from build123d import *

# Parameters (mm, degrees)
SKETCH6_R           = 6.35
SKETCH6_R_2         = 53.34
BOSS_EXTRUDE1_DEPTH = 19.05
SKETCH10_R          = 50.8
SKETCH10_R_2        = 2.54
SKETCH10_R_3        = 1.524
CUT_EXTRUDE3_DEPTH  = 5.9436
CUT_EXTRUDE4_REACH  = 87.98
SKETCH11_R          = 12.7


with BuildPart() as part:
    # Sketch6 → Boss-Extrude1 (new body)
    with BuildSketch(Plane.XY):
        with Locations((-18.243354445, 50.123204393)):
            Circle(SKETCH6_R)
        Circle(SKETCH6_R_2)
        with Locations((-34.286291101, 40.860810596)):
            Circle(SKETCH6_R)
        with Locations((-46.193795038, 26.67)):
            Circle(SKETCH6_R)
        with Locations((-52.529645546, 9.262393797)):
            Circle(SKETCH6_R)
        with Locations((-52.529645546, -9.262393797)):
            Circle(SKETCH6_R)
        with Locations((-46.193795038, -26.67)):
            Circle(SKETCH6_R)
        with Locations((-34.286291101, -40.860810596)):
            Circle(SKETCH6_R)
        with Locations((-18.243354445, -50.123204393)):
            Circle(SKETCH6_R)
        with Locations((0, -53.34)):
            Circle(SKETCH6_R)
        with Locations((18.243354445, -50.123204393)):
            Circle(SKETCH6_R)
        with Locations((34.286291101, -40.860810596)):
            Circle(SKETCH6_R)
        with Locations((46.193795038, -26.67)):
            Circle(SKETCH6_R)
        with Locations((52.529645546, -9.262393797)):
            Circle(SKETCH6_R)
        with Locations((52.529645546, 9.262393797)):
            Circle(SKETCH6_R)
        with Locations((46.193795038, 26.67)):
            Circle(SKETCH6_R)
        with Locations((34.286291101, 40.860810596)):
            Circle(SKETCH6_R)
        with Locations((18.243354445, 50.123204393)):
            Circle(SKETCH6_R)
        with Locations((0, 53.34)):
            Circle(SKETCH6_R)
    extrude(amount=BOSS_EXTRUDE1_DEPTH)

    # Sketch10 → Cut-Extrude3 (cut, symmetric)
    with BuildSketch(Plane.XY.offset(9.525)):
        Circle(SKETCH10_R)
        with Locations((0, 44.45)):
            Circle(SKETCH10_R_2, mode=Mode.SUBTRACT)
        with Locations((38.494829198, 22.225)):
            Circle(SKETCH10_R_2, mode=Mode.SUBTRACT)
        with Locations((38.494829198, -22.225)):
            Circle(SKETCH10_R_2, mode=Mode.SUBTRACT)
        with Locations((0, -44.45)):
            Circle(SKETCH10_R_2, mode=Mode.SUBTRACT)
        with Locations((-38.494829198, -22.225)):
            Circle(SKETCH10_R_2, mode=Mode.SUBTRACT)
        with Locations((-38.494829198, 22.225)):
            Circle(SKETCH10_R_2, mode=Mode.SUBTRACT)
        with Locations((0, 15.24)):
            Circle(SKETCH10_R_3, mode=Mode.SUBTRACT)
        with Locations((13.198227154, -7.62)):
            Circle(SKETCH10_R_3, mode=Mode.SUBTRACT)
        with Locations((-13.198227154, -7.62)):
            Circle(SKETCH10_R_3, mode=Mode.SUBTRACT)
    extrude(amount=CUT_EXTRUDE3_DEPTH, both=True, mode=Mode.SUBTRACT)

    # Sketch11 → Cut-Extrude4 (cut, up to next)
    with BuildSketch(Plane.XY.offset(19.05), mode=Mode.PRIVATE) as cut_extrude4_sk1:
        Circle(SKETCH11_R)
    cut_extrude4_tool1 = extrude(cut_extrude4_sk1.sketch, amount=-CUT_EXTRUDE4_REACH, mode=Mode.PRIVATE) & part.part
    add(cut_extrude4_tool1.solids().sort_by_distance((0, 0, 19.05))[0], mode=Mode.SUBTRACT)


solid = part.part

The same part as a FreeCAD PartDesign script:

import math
import FreeCAD as App
import Part
import Sketcher

V = App.Vector
Q = App.Units.Quantity

doc = App.newDocument("Part")
body = doc.addObject("PartDesign::Body", "Body")

# Sketch on XY plane
sketch1 = doc.addObject("Sketcher::SketchObject", "Sketch")
body.addObject(sketch1)
sketch1.AttachmentSupport = (doc.XY_Plane, [""])
sketch1.MapMode = "FlatFace"
sketch1.addGeometry(Part.ArcOfCircle(Part.Circle(V(0, 0, 0), V(0, 0, 1), 53), math.radians(-3.18), math.radians(3.18)), False)
sketch1.addGeometry(Part.ArcOfCircle(Part.Circle(V(53, 9, 0), V(0, 0, 1), 6), math.radians(-83), math.radians(103)), False)
sketch1.addGeometry(Part.ArcOfCircle(Part.Circle(V(0, 0, 0), V(0, 0, 1), 53), math.radians(16.82), math.radians(23.18)), False)
sketch1.addGeometry(Part.ArcOfCircle(Part.Circle(V(46, 27, 0), V(0, 0, 1), 6), math.radians(-63), math.radians(123)), False)
sketch1.addGeometry(Part.ArcOfCircle(Part.Circle(V(0, 0, 0), V(0, 0, 1), 53), math.radians(36.82), math.radians(43.18)), False)
sketch1.addGeometry(Part.ArcOfCircle(Part.Circle(V(34, 41, 0), V(0, 0, 1), 6), math.radians(-43), math.radians(143)), False)
sketch1.addGeometry(Part.ArcOfCircle(Part.Circle(V(0, 0, 0), V(0, 0, 1), 53), math.radians(56.82), math.radians(63.18)), False)
sketch1.addGeometry(Part.ArcOfCircle(Part.Circle(V(18, 50, 0), V(0, 0, 1), 6), math.radians(-23), math.radians(163)), False)
sketch1.addGeometry(Part.ArcOfCircle(Part.Circle(V(0, 0, 0), V(0, 0, 1), 53), math.radians(76.82), math.radians(83.18)), False)
sketch1.addGeometry(Part.ArcOfCircle(Part.Circle(V(0, 53, 0), V(0, 0, 1), 6), math.radians(-3), math.radians(183)), False)
sketch1.addGeometry(Part.ArcOfCircle(Part.Circle(V(0, 0, 0), V(0, 0, 1), 53), math.radians(96.82), math.radians(103.18)), False)
sketch1.addGeometry(Part.ArcOfCircle(Part.Circle(V(-18, 50, 0), V(0, 0, 1), 6), math.radians(17), math.radians(203)), False)
sketch1.addGeometry(Part.ArcOfCircle(Part.Circle(V(0, 0, 0), V(0, 0, 1), 53), math.radians(116.82), math.radians(123.18)), False)
sketch1.addGeometry(Part.ArcOfCircle(Part.Circle(V(-34, 41, 0), V(0, 0, 1), 6), math.radians(37), math.radians(223)), False)
sketch1.addGeometry(Part.ArcOfCircle(Part.Circle(V(0, 0, 0), V(0, 0, 1), 53), math.radians(136.82), math.radians(143.18)), False)
sketch1.addGeometry(Part.ArcOfCircle(Part.Circle(V(-46, 27, 0), V(0, 0, 1), 6), math.radians(57), math.radians(243)), False)
sketch1.addGeometry(Part.ArcOfCircle(Part.Circle(V(0, 0, 0), V(0, 0, 1), 53), math.radians(156.82), math.radians(163.18)), False)
sketch1.addGeometry(Part.ArcOfCircle(Part.Circle(V(-53, 9, 0), V(0, 0, 1), 6), math.radians(77), math.radians(263)), False)
sketch1.addGeometry(Part.ArcOfCircle(Part.Circle(V(0, 0, 0), V(0, 0, 1), 53), math.radians(176.82), math.radians(183.18)), False)
sketch1.addGeometry(Part.ArcOfCircle(Part.Circle(V(-53, -9, 0), V(0, 0, 1), 6), math.radians(97), math.radians(283)), False)
sketch1.addGeometry(Part.ArcOfCircle(Part.Circle(V(0, 0, 0), V(0, 0, 1), 53), math.radians(-163.18), math.radians(-156.82)), False)
sketch1.addGeometry(Part.ArcOfCircle(Part.Circle(V(-46, -27, 0), V(0, 0, 1), 6), math.radians(117), math.radians(303)), False)
sketch1.addGeometry(Part.ArcOfCircle(Part.Circle(V(0, 0, 0), V(0, 0, 1), 53), math.radians(-143.18), math.radians(-136.82)), False)
sketch1.addGeometry(Part.ArcOfCircle(Part.Circle(V(-34, -41, 0), V(0, 0, 1), 6), math.radians(137), math.radians(323)), False)
sketch1.addGeometry(Part.ArcOfCircle(Part.Circle(V(0, 0, 0), V(0, 0, 1), 53), math.radians(-123.18), math.radians(-116.82)), False)
sketch1.addGeometry(Part.ArcOfCircle(Part.Circle(V(-18, -50, 0), V(0, 0, 1), 6), math.radians(157), math.radians(343)), False)
sketch1.addGeometry(Part.ArcOfCircle(Part.Circle(V(0, 0, 0), V(0, 0, 1), 53), math.radians(-103.18), math.radians(-96.82)), False)
sketch1.addGeometry(Part.ArcOfCircle(Part.Circle(V(0, -53, 0), V(0, 0, 1), 6), math.radians(177), math.radians(363)), False)
sketch1.addGeometry(Part.ArcOfCircle(Part.Circle(V(0, 0, 0), V(0, 0, 1), 53), math.radians(-83.18), math.radians(-76.82)), False)
sketch1.addGeometry(Part.ArcOfCircle(Part.Circle(V(18, -50, 0), V(0, 0, 1), 6), math.radians(-163), math.radians(23)), False)
sketch1.addGeometry(Part.ArcOfCircle(Part.Circle(V(0, 0, 0), V(0, 0, 1), 53), math.radians(-63.18), math.radians(-56.82)), False)
sketch1.addGeometry(Part.ArcOfCircle(Part.Circle(V(34, -41, 0), V(0, 0, 1), 6), math.radians(-143), math.radians(43)), False)
sketch1.addGeometry(Part.ArcOfCircle(Part.Circle(V(0, 0, 0), V(0, 0, 1), 53), math.radians(-43.18), math.radians(-36.82)), False)
sketch1.addGeometry(Part.ArcOfCircle(Part.Circle(V(46, -27, 0), V(0, 0, 1), 6), math.radians(-123), math.radians(63)), False)
sketch1.addGeometry(Part.ArcOfCircle(Part.Circle(V(0, 0, 0), V(0, 0, 1), 53), math.radians(-23.18), math.radians(-16.82)), False)
sketch1.addGeometry(Part.ArcOfCircle(Part.Circle(V(53, -9, 0), V(0, 0, 1), 6), math.radians(-103), math.radians(83)), False)
sketch1.addConstraint(Sketcher.Constraint("Coincident", 0, 2, 1, 1))
sketch1.addConstraint(Sketcher.Constraint("Coincident", 1, 2, 2, 1))
sketch1.addConstraint(Sketcher.Constraint("Coincident", 2, 2, 3, 1))
sketch1.addConstraint(Sketcher.Constraint("Coincident", 3, 2, 4, 1))
sketch1.addConstraint(Sketcher.Constraint("Coincident", 4, 2, 5, 1))
sketch1.addConstraint(Sketcher.Constraint("Coincident", 5, 2, 6, 1))
sketch1.addConstraint(Sketcher.Constraint("Coincident", 6, 2, 7, 1))
sketch1.addConstraint(Sketcher.Constraint("Coincident", 7, 2, 8, 1))
sketch1.addConstraint(Sketcher.Constraint("Coincident", 8, 2, 9, 1))
sketch1.addConstraint(Sketcher.Constraint("Coincident", 9, 2, 10, 1))
sketch1.addConstraint(Sketcher.Constraint("Coincident", 10, 2, 11, 1))
sketch1.addConstraint(Sketcher.Constraint("Coincident", 11, 2, 12, 1))
sketch1.addConstraint(Sketcher.Constraint("Coincident", 12, 2, 13, 1))
sketch1.addConstraint(Sketcher.Constraint("Coincident", 13, 2, 14, 1))
sketch1.addConstraint(Sketcher.Constraint("Coincident", 14, 2, 15, 1))
sketch1.addConstraint(Sketcher.Constraint("Coincident", 15, 2, 16, 1))
sketch1.addConstraint(Sketcher.Constraint("Coincident", 16, 2, 17, 1))
sketch1.addConstraint(Sketcher.Constraint("Coincident", 17, 2, 18, 1))
sketch1.addConstraint(Sketcher.Constraint("Coincident", 18, 2, 19, 1))
sketch1.addConstraint(Sketcher.Constraint("Coincident", 19, 2, 20, 1))
sketch1.addConstraint(Sketcher.Constraint("Coincident", 20, 2, 21, 1))
sketch1.addConstraint(Sketcher.Constraint("Coincident", 21, 2, 22, 1))
sketch1.addConstraint(Sketcher.Constraint("Coincident", 22, 2, 23, 1))
sketch1.addConstraint(Sketcher.Constraint("Coincident", 23, 2, 24, 1))
sketch1.addConstraint(Sketcher.Constraint("Coincident", 24, 2, 25, 1))
sketch1.addConstraint(Sketcher.Constraint("Coincident", 25, 2, 26, 1))
sketch1.addConstraint(Sketcher.Constraint("Coincident", 26, 2, 27, 1))
sketch1.addConstraint(Sketcher.Constraint("Coincident", 27, 2, 28, 1))
sketch1.addConstraint(Sketcher.Constraint("Coincident", 28, 2, 29, 1))
sketch1.addConstraint(Sketcher.Constraint("Coincident", 29, 2, 30, 1))
sketch1.addConstraint(Sketcher.Constraint("Coincident", 30, 2, 31, 1))
sketch1.addConstraint(Sketcher.Constraint("Coincident", 31, 2, 32, 1))
sketch1.addConstraint(Sketcher.Constraint("Coincident", 32, 2, 33, 1))
sketch1.addConstraint(Sketcher.Constraint("Coincident", 33, 2, 34, 1))
sketch1.addConstraint(Sketcher.Constraint("Coincident", 34, 2, 35, 1))
sketch1.addConstraint(Sketcher.Constraint("Coincident", 35, 2, 0, 1))
sketch1.addConstraint(Sketcher.Constraint("Coincident", 0, 3, -1, 1))
sketch1.addConstraint(Sketcher.Constraint("Coincident", 2, 3, -1, 1))
sketch1.addConstraint(Sketcher.Constraint("Coincident", 4, 3, -1, 1))
sketch1.addConstraint(Sketcher.Constraint("Coincident", 6, 3, -1, 1))
sketch1.addConstraint(Sketcher.Constraint("Coincident", 8, 3, -1, 1))
sketch1.addConstraint(Sketcher.Constraint("Coincident", 10, 3, -1, 1))
sketch1.addConstraint(Sketcher.Constraint("Coincident", 12, 3, -1, 1))
sketch1.addConstraint(Sketcher.Constraint("Coincident", 14, 3, -1, 1))
sketch1.addConstraint(Sketcher.Constraint("Coincident", 16, 3, -1, 1))
sketch1.addConstraint(Sketcher.Constraint("Coincident", 18, 3, -1, 1))
sketch1.addConstraint(Sketcher.Constraint("Coincident", 20, 3, -1, 1))
sketch1.addConstraint(Sketcher.Constraint("Coincident", 22, 3, -1, 1))
sketch1.addConstraint(Sketcher.Constraint("Coincident", 24, 3, -1, 1))
sketch1.addConstraint(Sketcher.Constraint("Coincident", 26, 3, -1, 1))
sketch1.addConstraint(Sketcher.Constraint("Coincident", 28, 3, -1, 1))
sketch1.addConstraint(Sketcher.Constraint("Coincident", 30, 3, -1, 1))
sketch1.addConstraint(Sketcher.Constraint("Coincident", 32, 3, -1, 1))
sketch1.addConstraint(Sketcher.Constraint("Coincident", 34, 3, -1, 1))
sketch1.addConstraint(Sketcher.Constraint("Equal", 0, 2))
sketch1.addConstraint(Sketcher.Constraint("Equal", 1, 3))
sketch1.addConstraint(Sketcher.Constraint("Equal", 2, 4))
sketch1.addConstraint(Sketcher.Constraint("Equal", 3, 5))
sketch1.addConstraint(Sketcher.Constraint("Equal", 4, 6))
sketch1.addConstraint(Sketcher.Constraint("Equal", 5, 7))
sketch1.addConstraint(Sketcher.Constraint("Equal", 6, 8))
sketch1.addConstraint(Sketcher.Constraint("Equal", 7, 9))
sketch1.addConstraint(Sketcher.Constraint("Equal", 8, 10))
sketch1.addConstraint(Sketcher.Constraint("Equal", 9, 11))
sketch1.addConstraint(Sketcher.Constraint("Equal", 10, 12))
sketch1.addConstraint(Sketcher.Constraint("Equal", 11, 13))
sketch1.addConstraint(Sketcher.Constraint("Equal", 12, 14))
sketch1.addConstraint(Sketcher.Constraint("Equal", 13, 15))
sketch1.addConstraint(Sketcher.Constraint("Equal", 14, 16))
sketch1.addConstraint(Sketcher.Constraint("Equal", 15, 17))
sketch1.addConstraint(Sketcher.Constraint("Equal", 16, 18))
sketch1.addConstraint(Sketcher.Constraint("Equal", 17, 19))
sketch1.addConstraint(Sketcher.Constraint("Equal", 18, 20))
sketch1.addConstraint(Sketcher.Constraint("Equal", 19, 21))
sketch1.addConstraint(Sketcher.Constraint("Equal", 20, 22))
sketch1.addConstraint(Sketcher.Constraint("Equal", 21, 23))
sketch1.addConstraint(Sketcher.Constraint("Equal", 22, 24))
sketch1.addConstraint(Sketcher.Constraint("Equal", 23, 25))
sketch1.addConstraint(Sketcher.Constraint("Equal", 24, 26))
sketch1.addConstraint(Sketcher.Constraint("Equal", 25, 27))
sketch1.addConstraint(Sketcher.Constraint("Equal", 26, 28))
sketch1.addConstraint(Sketcher.Constraint("Equal", 27, 29))
sketch1.addConstraint(Sketcher.Constraint("Equal", 28, 30))
sketch1.addConstraint(Sketcher.Constraint("Equal", 29, 31))
sketch1.addConstraint(Sketcher.Constraint("Equal", 30, 32))
sketch1.addConstraint(Sketcher.Constraint("Equal", 31, 33))
sketch1.addConstraint(Sketcher.Constraint("Equal", 32, 34))
sketch1.addConstraint(Sketcher.Constraint("Equal", 33, 35))
sketch1.addConstraint(Sketcher.Constraint("Symmetric", 1, 3, 19, 3, -1, 1))
sketch1.addConstraint(Sketcher.Constraint("Symmetric", 3, 3, 21, 3, -1, 1))
sketch1.addConstraint(Sketcher.Constraint("Symmetric", 5, 3, 23, 3, -1, 1))
sketch1.addConstraint(Sketcher.Constraint("Symmetric", 7, 3, 25, 3, -1, 1))
sketch1.addConstraint(Sketcher.Constraint("Symmetric", 9, 3, 27, 3, -1, 1))
sketch1.addConstraint(Sketcher.Constraint("Symmetric", 11, 3, 29, 3, -1, 1))
sketch1.addConstraint(Sketcher.Constraint("Symmetric", 13, 3, 31, 3, -1, 1))
sketch1.addConstraint(Sketcher.Constraint("Symmetric", 15, 3, 33, 3, -1, 1))
sketch1.addConstraint(Sketcher.Constraint("Symmetric", 17, 3, 35, 3, -1, 1))
sketch1.addConstraint(Sketcher.Constraint("Symmetric", 7, 3, 11, 3, -2))
sketch1.addConstraint(Sketcher.Constraint("Symmetric", 5, 3, 13, 3, -2))
sketch1.addConstraint(Sketcher.Constraint("Symmetric", 3, 3, 15, 3, -2))
sketch1.addConstraint(Sketcher.Constraint("Symmetric", 1, 3, 17, 3, -2))
sketch1.addConstraint(Sketcher.Constraint("PointOnObject", 9, 3, -2))
sketch1.addConstraint(Sketcher.Constraint("Radius", 0, Q("2.1 in")))
sketch1.addConstraint(Sketcher.Constraint("Radius", 1, Q("0.25 in")))
sketch1.addConstraint(Sketcher.Constraint("DistanceY", -1, 1, 9, 3, Q("2.1 in")))
sketch1.addConstraint(Sketcher.Constraint("DistanceY", -1, 1, 3, 3, Q("1.05 in")))
sketch1.addConstraint(Sketcher.Constraint("DistanceX", -1, 1, 1, 2, Q("51.056701 mm")))
sketch1.addConstraint(Sketcher.Constraint("DistanceY", -1, 1, 2, 2, Q("20.991501 mm")))
sketch1.addConstraint(Sketcher.Constraint("DistanceY", -1, 1, 4, 2, Q("36.4968 mm")))
sketch1.addConstraint(Sketcher.Constraint("DistanceY", -1, 1, 7, 2, Q("51.936 mm")))
sketch1.addConstraint(Sketcher.Constraint("DistanceX", -1, 1, 5, 3, Q("34.286291 mm")))
sketch1.addConstraint(Sketcher.Constraint("DistanceX", -1, 1, 1, 3, Q("52.529646 mm")))
sketch1.addConstraint(Sketcher.Constraint("DistanceX", -1, 1, 7, 3, Q("18.243354 mm")))
pad1 = doc.addObject("PartDesign::Pad", "Pad")
body.addObject(pad1)
pad1.Profile = sketch1
pad1.Length = Q("0.75 in")

# Sketch on XY plane
sketch2 = doc.addObject("Sketcher::SketchObject", "Sketch001")
body.addObject(sketch2)
sketch2.AttachmentSupport = (doc.XY_Plane, [""])
sketch2.MapMode = "FlatFace"
sketch2.AttachmentOffset = App.Placement(V(0, 0, 0.375 * 25.4), App.Rotation())
sketch2.addGeometry(Part.Circle(V(0, 0, 0), V(0, 0, 1), 50.8), False)
sketch2.addGeometry(Part.Circle(V(-38.5, -22.2, 0), V(0, 0, 1), 2.5), False)
sketch2.addGeometry(Part.Circle(V(-13.2, -7.6, 0), V(0, 0, 1), 1.5), False)
sketch2.addGeometry(Part.Circle(V(0, -44.5, 0), V(0, 0, 1), 2.5), False)
sketch2.addGeometry(Part.Circle(V(13.2, -7.6, 0), V(0, 0, 1), 1.5), False)
sketch2.addGeometry(Part.Circle(V(38.5, -22.2, 0), V(0, 0, 1), 2.5), False)
sketch2.addGeometry(Part.Circle(V(-38.5, 22.2, 0), V(0, 0, 1), 2.5), False)
sketch2.addGeometry(Part.Circle(V(0, 15.2, 0), V(0, 0, 1), 1.5), False)
sketch2.addGeometry(Part.Circle(V(38.5, 22.2, 0), V(0, 0, 1), 2.5), False)
sketch2.addGeometry(Part.Circle(V(0, 44.5, 0), V(0, 0, 1), 2.5), False)
sketch2.addConstraint(Sketcher.Constraint("Coincident", 0, 3, -1, 1))
sketch2.addConstraint(Sketcher.Constraint("Equal", 1, 3))
sketch2.addConstraint(Sketcher.Constraint("Equal", 2, 4))
sketch2.addConstraint(Sketcher.Constraint("Equal", 3, 5))
sketch2.addConstraint(Sketcher.Constraint("Equal", 5, 6))
sketch2.addConstraint(Sketcher.Constraint("Equal", 4, 7))
sketch2.addConstraint(Sketcher.Constraint("Equal", 6, 8))
sketch2.addConstraint(Sketcher.Constraint("Equal", 8, 9))
sketch2.addConstraint(Sketcher.Constraint("Symmetric", 5, 3, 6, 3, -1, 1))
sketch2.addConstraint(Sketcher.Constraint("Symmetric", 1, 3, 8, 3, -1, 1))
sketch2.addConstraint(Sketcher.Constraint("Symmetric", 3, 3, 9, 3, -1, 1))
sketch2.addConstraint(Sketcher.Constraint("Symmetric", 2, 3, 4, 3, -2))
sketch2.addConstraint(Sketcher.Constraint("Symmetric", 1, 3, 5, 3, -2))
sketch2.addConstraint(Sketcher.Constraint("PointOnObject", 3, 3, -2))
sketch2.addConstraint(Sketcher.Constraint("PointOnObject", 7, 3, -2))
sketch2.addConstraint(Sketcher.Constraint("Diameter", 0, Q("4 in")))
sketch2.addConstraint(Sketcher.Constraint("Diameter", 1, Q("0.2 in")))
sketch2.addConstraint(Sketcher.Constraint("Diameter", 2, Q("0.12 in")))
sketch2.addConstraint(Sketcher.Constraint("DistanceY", 2, 3, -1, 1, Q("0.3 in")))
sketch2.addConstraint(Sketcher.Constraint("DistanceY", -1, 1, 7, 3, Q("0.6 in")))
sketch2.addConstraint(Sketcher.Constraint("DistanceY", 3, 3, -1, 1, Q("1.75 in")))
sketch2.addConstraint(Sketcher.Constraint("DistanceY", 1, 3, 6, 3, Q("1.75 in")))
sketch2.addConstraint(Sketcher.Constraint("DistanceX", 1, 3, -1, 1, Q("38.494829 mm")))
sketch2.addConstraint(Sketcher.Constraint("DistanceX", 2, 3, -1, 1, Q("13.198227 mm")))
pocket1 = doc.addObject("PartDesign::Pocket", "Pocket")
body.addObject(pocket1)
pocket1.Profile = sketch2
pocket1.Length = Q("0.468 in")
pocket1.Midplane = True

# Sketch on XY plane
sketch3 = doc.addObject("Sketcher::SketchObject", "Sketch002")
body.addObject(sketch3)
sketch3.AttachmentSupport = (doc.XY_Plane, [""])
sketch3.MapMode = "FlatFace"
sketch3.AttachmentOffset = App.Placement(V(0, 0, 0.75 * 25.4), App.Rotation())
sketch3.addGeometry(Part.Circle(V(0, 0, 0), V(0, 0, 1), 13), False)
sketch3.addConstraint(Sketcher.Constraint("Coincident", 0, 3, -1, 1))
sketch3.addConstraint(Sketcher.Constraint("Diameter", 0, Q("1 in")))
pocket2 = doc.addObject("PartDesign::Pocket", "Pocket001")
body.addObject(pocket2)
pocket2.Profile = sketch3
pocket2.Type = "UpToFirst"

doc.recompute()
